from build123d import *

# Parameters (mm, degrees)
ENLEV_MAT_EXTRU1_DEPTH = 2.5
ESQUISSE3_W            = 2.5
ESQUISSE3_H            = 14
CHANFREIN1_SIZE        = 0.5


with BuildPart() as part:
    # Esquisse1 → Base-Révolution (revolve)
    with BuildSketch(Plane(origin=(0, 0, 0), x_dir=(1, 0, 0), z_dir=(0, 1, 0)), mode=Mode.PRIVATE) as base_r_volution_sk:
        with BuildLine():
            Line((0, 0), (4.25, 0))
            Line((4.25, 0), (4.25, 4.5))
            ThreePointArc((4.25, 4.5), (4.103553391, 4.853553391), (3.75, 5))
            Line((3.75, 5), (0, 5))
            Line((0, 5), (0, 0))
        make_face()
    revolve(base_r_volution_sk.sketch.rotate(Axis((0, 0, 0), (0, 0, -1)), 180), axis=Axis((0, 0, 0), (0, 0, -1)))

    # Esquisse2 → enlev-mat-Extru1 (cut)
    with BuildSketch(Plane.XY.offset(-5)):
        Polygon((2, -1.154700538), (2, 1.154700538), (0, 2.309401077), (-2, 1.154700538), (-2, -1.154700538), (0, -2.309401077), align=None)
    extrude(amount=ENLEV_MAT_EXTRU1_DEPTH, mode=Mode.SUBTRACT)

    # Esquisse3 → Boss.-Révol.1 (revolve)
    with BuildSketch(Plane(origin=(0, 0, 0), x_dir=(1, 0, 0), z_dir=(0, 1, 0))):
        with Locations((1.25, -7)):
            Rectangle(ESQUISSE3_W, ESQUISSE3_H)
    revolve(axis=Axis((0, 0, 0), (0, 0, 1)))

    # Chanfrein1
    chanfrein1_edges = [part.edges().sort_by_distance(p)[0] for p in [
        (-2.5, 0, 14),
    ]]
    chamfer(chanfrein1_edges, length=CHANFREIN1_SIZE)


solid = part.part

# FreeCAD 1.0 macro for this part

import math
import FreeCAD as App
import Part
import Sketcher
from FreeCAD import Vector
Q = App.Units.Quantity


def edges_at(feature, points):
    """Names of the edges that pass closest to the given points."""
    edges = feature.Shape.Edges
    near = lambda p: min(range(len(edges)), key=lambda i: edges[i].distToShape(Part.Vertex(*p))[0])
    return sorted({f"Edge{near(p) + 1}" for p in points})


def add_polygon(sketch, points):
    """Adds a closed chain of lines whose ends are joined by coincident constraints."""
    first, n = sketch.GeometryCount, len(points)
    for a, b in zip(points, points[1:] + points[:1]):
        sketch.addGeometry(Part.LineSegment(App.Vector(*a, 0), App.Vector(*b, 0)), False)
    for i in range(n):
        sketch.addConstraint(Sketcher.Constraint("Coincident", first + i, 2, first + (i + 1) % n, 1))

doc = App.newDocument("Part")
body = doc.addObject("PartDesign::Body", "Body")

# Sketch on XZ plane
sketch1 = body.newObject("Sketcher::SketchObject", "Sketch")
sketch1.AttachmentSupport = (doc.getObject("XZ_Plane"), [""])
sketch1.MapMode = "FlatFace"
sketch1.addGeometry(Part.LineSegment(Vector(0, 0, 0), Vector(4.25, 0, 0)), False)
sketch1.addGeometry(Part.LineSegment(Vector(4.25, 0, 0), Vector(4.25, -4.5, 0)), False)
sketch1.addGeometry(Part.ArcOfCircle(Part.Circle(Vector(3.75, -4.5, 0), Vector(0, 0, 1), 0.5), math.radians(-90), math.radians(0)), False)
sketch1.addGeometry(Part.LineSegment(Vector(3.75, -5, 0), Vector(0, -5, 0)), False)
sketch1.addGeometry(Part.LineSegment(Vector(0, -5, 0), Vector(0, 0, 0)), False)
sketch1.addConstraint(Sketcher.Constraint("Coincident", 0, 2, 1, 1))
sketch1.addConstraint(Sketcher.Constraint("Tangent", 1, 2, 2, 2))
sketch1.addConstraint(Sketcher.Constraint("Tangent", 2, 1, 3, 1))
sketch1.addConstraint(Sketcher.Constraint("Coincident", 3, 2, 4, 1))
sketch1.addConstraint(Sketcher.Constraint("Coincident", 4, 2, 0, 1))
sketch1.addConstraint(Sketcher.Constraint("Horizontal", 0))
sketch1.addConstraint(Sketcher.Constraint("Vertical", 1))
sketch1.addConstraint(Sketcher.Constraint("Horizontal", 3))
sketch1.addConstraint(Sketcher.Constraint("Vertical", 4))
sketch1.addConstraint(Sketcher.Constraint("Coincident", 4, 2, -1, 1))
sketch1.addConstraint(Sketcher.Constraint("Radius", 2, 0.5))
sketch1.addConstraint(Sketcher.Constraint("DistanceY", 4, 1, 4, 2, 5.0))
sketch1.addConstraint(Sketcher.Constraint("DistanceX", 0, 1, 0, 2, 4.25))
revolution = body.newObject("PartDesign::Revolution", "Revolution")
revolution.Profile = sketch1
revolution.ReferenceAxis = (sketch1, ["V_Axis"])
revolution.Angle = 360

# Sketch on XY plane
sketch2 = body.newObject("Sketcher::SketchObject", "Sketch001")
sketch2.AttachmentSupport = (doc.getObject("XY_Plane"), [""])
sketch2.MapMode = "FlatFace"
sketch2.AttachmentOffset = App.Placement(Vector(0, 0, -5), App.Rotation())
add_polygon(sketch2, [(2, -1.154701), (2, 1.154701), (0, 2.309401), (-2, 1.154701), (-2, -1.154701), (0, -2.309401)])  # lines 0-5
sketch2.addConstraint(Sketcher.Constraint("Vertical", 0))
sketch2.addConstraint(Sketcher.Constraint("Vertical", 3))
sketch2.addConstraint(Sketcher.Constraint("Symmetric", 0, 2, 3, 2, -1, 1))
sketch2.addConstraint(Sketcher.Constraint("Symmetric", 1, 2, 4, 2, -1, 1))
sketch2.addConstraint(Sketcher.Constraint("PointOnObject", 1, 2, -2))
sketch2.addConstraint(Sketcher.Constraint("Parallel", 2, 5))
sketch2.addConstraint(Sketcher.Constraint("Horizontal", 0, 2, 2, 2))
sketch2.addConstraint(Sketcher.Constraint("Angle", 1, Q("150 deg")))
sketch2.addConstraint(Sketcher.Constraint("DistanceX", -1, 1, 0, 2, 2.0))
sketch2.addConstraint(Sketcher.Constraint("DistanceY", 0, 1, 0, 2, 2.309401))
pocket1 = body.newObject("PartDesign::Pocket", "Pocket")
pocket1.Profile = sketch2
pocket1.Length = 2.5
pocket1.Reversed = True

# Sketch on XZ plane
sketch3 = body.newObject("Sketcher::SketchObject", "Sketch002")
sketch3.AttachmentSupport = (doc.getObject("XZ_Plane"), [""])
sketch3.MapMode = "FlatFace"
add_polygon(sketch3, [(0, 0), (0, 14), (2.5, 14), (2.5, 0)])  # lines 0-3
sketch3.addConstraint(Sketcher.Constraint("Vertical", 0))
sketch3.addConstraint(Sketcher.Constraint("Horizontal", 1))
sketch3.addConstraint(Sketcher.Constraint("Vertical", 2))
sketch3.addConstraint(Sketcher.Constraint("Horizontal", 3))
sketch3.addConstraint(Sketcher.Constraint("Coincident", 3, 2, -1, 1))
sketch3.addConstraint(Sketcher.Constraint("DistanceY", 0, 1, 0, 2, 14.0))
sketch3.addConstraint(Sketcher.Constraint("DistanceX", 1, 1, 1, 2, 2.5))
revolution2 = body.newObject("PartDesign::Revolution", "Revolution001")
revolution2.Profile = sketch3
revolution2.ReferenceAxis = (sketch3, ["V_Axis"])
revolution2.Angle = 360
doc.recompute()

chamfer = body.newObject("PartDesign::Chamfer", "Chamfer")
chamfer.Base = (revolution2, edges_at(revolution2, [(-2.5, 0, 14)]))
chamfer.Size = 0.5

doc.recompute()
